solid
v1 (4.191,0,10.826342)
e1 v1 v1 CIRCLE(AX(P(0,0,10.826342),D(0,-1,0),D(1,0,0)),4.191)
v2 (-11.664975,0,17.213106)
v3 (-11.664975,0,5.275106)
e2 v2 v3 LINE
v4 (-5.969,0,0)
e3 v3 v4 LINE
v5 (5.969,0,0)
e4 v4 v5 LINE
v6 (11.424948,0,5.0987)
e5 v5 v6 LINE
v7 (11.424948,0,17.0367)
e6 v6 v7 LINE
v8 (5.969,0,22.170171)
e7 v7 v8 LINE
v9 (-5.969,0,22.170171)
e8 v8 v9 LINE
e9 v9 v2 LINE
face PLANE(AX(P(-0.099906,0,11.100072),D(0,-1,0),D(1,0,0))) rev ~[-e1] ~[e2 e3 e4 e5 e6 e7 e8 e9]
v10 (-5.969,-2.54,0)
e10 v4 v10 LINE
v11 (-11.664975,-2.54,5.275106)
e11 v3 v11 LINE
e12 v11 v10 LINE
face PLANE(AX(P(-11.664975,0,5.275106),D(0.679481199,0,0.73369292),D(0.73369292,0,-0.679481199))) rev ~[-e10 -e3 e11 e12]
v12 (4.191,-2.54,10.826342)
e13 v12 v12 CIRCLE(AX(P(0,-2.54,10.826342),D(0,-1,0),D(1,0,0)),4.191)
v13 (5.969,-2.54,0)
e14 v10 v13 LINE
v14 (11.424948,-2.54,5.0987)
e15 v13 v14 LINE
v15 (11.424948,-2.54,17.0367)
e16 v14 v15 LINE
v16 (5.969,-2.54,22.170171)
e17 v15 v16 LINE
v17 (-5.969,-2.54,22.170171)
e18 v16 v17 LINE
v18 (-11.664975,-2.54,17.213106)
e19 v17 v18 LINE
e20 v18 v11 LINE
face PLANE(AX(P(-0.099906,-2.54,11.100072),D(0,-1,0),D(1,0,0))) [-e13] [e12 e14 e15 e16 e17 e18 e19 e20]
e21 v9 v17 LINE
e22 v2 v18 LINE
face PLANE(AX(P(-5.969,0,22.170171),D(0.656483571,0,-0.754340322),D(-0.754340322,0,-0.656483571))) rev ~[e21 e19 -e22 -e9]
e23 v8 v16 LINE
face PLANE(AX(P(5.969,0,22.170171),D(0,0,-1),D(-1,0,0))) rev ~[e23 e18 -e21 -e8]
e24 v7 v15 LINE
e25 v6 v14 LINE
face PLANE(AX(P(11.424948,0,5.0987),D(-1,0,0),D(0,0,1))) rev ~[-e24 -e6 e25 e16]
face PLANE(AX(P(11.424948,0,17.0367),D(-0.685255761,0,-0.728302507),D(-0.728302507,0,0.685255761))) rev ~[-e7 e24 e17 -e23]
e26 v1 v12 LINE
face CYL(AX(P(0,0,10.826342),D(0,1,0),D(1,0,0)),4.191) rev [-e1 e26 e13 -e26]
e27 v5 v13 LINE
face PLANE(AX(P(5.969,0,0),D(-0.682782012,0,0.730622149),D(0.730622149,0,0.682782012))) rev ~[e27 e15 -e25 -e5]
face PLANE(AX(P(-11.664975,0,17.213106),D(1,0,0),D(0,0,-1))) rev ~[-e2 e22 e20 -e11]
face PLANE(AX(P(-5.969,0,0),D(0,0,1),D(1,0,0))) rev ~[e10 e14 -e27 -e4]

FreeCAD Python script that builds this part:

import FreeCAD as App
import Part
import Sketcher

V = App.Vector
Q = App.Units.Quantity


def add_polygon(sketch, points):
    """Adds a closed chain of lines whose ends are joined by coincident constraints."""
    first, n = sketch.GeometryCount, len(points)
    for a, b in zip(points, points[1:] + points[:1]):
        sketch.addGeometry(Part.LineSegment(App.Vector(*a, 0), App.Vector(*b, 0)), False)
    for i in range(n):
        sketch.addConstraint(Sketcher.Constraint("Coincident", first + i, 2, first + (i + 1) % n, 1))

doc = App.newDocument("Part")
params = doc.addObject("Spreadsheet::Sheet", "Params")
for row, (alias, value) in enumerate([
    ("sketch1_diameter", "0.33 in"),
    ("sketch1_width", "0.47 in"),
    ("pad1_length", "0.1 in"),
], start=1):
    params.set(f"A{row}", alias)
    params.set(f"B{row}", "=" + value)
    params.setAlias(f"B{row}", alias)

body = doc.addObject("PartDesign::Body", "Body")

# Sketch on XZ plane
sketch1 = body.newObject("Sketcher::SketchObject", "Sketch")
sketch1.AttachmentSupport = (doc.getObject("XZ_Plane"), [""])
sketch1.MapMode = "FlatFace"
add_polygon(sketch1, [(-11.664975, 17.213106), (-11.664975, 5.275106), (-5.969, 0), (5.969, 0), (11.424948, 5.0987), (11.424948, 17.0367), (5.969, 22.170171), (-5.969, 22.170171)])  # lines 0-7
sketch1.addGeometry(Part.Circle(V(0, 10.826342, 0), V(0, 0, 1), 4.191), False)  # 8
sketch1.addConstraint(Sketcher.Constraint("Vertical", 0))
sketch1.addConstraint(Sketcher.Constraint("Horizontal", 2))
sketch1.addConstraint(Sketcher.Constraint("Vertical", 4))
sketch1.addConstraint(Sketcher.Constraint("Horizontal", 6))
sketch1.addConstraint(Sketcher.Constraint("Symmetric", 1, 2, 2, 2, -1, 1))
sketch1.addConstraint(Sketcher.Constraint("PointOnObject", 8, 3, -2))
sketch1.addConstraint(Sketcher.Constraint("Vertical", 2, 2, 5, 2))
sketch1.addConstraint(Sketcher.Constraint("Vertical", 1, 2, 6, 2))
sketch1.addConstraint(Sketcher.Constraint("Equal", 6, 0))
sketch1.addConstraint(Sketcher.Constraint("Equal", 0, 4))
sketch1.addConstraint(Sketcher.Constraint("Diameter", 8, Q("0.33 in")))
sketch1.addConstraint(Sketcher.Constraint("DistanceX", 2, 1, 2, 2, Q("0.47 in")))
sketch1.addConstraint(Sketcher.Constraint("DistanceY", -1, 1, 3, 2, Q("5.0987 mm")))
sketch1.addConstraint(Sketcher.Constraint("Distance", 1, Q("7.763432 mm")))
sketch1.addConstraint(Sketcher.Constraint("Distance", 5, Q("7.491321 mm")))
sketch1.addConstraint(Sketcher.Constraint("DistanceY", -1, 1, 5, 2, Q("22.170171 mm")))
sketch1.addConstraint(Sketcher.Constraint("DistanceY", 8, 3, 5, 2, Q("11.343829 mm")))
sketch1.addConstraint(Sketcher.Constraint("Distance", 7, Q("7.550935 mm")))
sketch1.setExpression("Constraints[18]", "Params.sketch1_diameter")
sketch1.setExpression("Constraints[19]", "Params.sketch1_width")
pad1 = body.newObject("PartDesign::Pad", "Pad")
pad1.Profile = sketch1
pad1.setExpression("Length", "Params.pad1_length")

doc.recompute()
